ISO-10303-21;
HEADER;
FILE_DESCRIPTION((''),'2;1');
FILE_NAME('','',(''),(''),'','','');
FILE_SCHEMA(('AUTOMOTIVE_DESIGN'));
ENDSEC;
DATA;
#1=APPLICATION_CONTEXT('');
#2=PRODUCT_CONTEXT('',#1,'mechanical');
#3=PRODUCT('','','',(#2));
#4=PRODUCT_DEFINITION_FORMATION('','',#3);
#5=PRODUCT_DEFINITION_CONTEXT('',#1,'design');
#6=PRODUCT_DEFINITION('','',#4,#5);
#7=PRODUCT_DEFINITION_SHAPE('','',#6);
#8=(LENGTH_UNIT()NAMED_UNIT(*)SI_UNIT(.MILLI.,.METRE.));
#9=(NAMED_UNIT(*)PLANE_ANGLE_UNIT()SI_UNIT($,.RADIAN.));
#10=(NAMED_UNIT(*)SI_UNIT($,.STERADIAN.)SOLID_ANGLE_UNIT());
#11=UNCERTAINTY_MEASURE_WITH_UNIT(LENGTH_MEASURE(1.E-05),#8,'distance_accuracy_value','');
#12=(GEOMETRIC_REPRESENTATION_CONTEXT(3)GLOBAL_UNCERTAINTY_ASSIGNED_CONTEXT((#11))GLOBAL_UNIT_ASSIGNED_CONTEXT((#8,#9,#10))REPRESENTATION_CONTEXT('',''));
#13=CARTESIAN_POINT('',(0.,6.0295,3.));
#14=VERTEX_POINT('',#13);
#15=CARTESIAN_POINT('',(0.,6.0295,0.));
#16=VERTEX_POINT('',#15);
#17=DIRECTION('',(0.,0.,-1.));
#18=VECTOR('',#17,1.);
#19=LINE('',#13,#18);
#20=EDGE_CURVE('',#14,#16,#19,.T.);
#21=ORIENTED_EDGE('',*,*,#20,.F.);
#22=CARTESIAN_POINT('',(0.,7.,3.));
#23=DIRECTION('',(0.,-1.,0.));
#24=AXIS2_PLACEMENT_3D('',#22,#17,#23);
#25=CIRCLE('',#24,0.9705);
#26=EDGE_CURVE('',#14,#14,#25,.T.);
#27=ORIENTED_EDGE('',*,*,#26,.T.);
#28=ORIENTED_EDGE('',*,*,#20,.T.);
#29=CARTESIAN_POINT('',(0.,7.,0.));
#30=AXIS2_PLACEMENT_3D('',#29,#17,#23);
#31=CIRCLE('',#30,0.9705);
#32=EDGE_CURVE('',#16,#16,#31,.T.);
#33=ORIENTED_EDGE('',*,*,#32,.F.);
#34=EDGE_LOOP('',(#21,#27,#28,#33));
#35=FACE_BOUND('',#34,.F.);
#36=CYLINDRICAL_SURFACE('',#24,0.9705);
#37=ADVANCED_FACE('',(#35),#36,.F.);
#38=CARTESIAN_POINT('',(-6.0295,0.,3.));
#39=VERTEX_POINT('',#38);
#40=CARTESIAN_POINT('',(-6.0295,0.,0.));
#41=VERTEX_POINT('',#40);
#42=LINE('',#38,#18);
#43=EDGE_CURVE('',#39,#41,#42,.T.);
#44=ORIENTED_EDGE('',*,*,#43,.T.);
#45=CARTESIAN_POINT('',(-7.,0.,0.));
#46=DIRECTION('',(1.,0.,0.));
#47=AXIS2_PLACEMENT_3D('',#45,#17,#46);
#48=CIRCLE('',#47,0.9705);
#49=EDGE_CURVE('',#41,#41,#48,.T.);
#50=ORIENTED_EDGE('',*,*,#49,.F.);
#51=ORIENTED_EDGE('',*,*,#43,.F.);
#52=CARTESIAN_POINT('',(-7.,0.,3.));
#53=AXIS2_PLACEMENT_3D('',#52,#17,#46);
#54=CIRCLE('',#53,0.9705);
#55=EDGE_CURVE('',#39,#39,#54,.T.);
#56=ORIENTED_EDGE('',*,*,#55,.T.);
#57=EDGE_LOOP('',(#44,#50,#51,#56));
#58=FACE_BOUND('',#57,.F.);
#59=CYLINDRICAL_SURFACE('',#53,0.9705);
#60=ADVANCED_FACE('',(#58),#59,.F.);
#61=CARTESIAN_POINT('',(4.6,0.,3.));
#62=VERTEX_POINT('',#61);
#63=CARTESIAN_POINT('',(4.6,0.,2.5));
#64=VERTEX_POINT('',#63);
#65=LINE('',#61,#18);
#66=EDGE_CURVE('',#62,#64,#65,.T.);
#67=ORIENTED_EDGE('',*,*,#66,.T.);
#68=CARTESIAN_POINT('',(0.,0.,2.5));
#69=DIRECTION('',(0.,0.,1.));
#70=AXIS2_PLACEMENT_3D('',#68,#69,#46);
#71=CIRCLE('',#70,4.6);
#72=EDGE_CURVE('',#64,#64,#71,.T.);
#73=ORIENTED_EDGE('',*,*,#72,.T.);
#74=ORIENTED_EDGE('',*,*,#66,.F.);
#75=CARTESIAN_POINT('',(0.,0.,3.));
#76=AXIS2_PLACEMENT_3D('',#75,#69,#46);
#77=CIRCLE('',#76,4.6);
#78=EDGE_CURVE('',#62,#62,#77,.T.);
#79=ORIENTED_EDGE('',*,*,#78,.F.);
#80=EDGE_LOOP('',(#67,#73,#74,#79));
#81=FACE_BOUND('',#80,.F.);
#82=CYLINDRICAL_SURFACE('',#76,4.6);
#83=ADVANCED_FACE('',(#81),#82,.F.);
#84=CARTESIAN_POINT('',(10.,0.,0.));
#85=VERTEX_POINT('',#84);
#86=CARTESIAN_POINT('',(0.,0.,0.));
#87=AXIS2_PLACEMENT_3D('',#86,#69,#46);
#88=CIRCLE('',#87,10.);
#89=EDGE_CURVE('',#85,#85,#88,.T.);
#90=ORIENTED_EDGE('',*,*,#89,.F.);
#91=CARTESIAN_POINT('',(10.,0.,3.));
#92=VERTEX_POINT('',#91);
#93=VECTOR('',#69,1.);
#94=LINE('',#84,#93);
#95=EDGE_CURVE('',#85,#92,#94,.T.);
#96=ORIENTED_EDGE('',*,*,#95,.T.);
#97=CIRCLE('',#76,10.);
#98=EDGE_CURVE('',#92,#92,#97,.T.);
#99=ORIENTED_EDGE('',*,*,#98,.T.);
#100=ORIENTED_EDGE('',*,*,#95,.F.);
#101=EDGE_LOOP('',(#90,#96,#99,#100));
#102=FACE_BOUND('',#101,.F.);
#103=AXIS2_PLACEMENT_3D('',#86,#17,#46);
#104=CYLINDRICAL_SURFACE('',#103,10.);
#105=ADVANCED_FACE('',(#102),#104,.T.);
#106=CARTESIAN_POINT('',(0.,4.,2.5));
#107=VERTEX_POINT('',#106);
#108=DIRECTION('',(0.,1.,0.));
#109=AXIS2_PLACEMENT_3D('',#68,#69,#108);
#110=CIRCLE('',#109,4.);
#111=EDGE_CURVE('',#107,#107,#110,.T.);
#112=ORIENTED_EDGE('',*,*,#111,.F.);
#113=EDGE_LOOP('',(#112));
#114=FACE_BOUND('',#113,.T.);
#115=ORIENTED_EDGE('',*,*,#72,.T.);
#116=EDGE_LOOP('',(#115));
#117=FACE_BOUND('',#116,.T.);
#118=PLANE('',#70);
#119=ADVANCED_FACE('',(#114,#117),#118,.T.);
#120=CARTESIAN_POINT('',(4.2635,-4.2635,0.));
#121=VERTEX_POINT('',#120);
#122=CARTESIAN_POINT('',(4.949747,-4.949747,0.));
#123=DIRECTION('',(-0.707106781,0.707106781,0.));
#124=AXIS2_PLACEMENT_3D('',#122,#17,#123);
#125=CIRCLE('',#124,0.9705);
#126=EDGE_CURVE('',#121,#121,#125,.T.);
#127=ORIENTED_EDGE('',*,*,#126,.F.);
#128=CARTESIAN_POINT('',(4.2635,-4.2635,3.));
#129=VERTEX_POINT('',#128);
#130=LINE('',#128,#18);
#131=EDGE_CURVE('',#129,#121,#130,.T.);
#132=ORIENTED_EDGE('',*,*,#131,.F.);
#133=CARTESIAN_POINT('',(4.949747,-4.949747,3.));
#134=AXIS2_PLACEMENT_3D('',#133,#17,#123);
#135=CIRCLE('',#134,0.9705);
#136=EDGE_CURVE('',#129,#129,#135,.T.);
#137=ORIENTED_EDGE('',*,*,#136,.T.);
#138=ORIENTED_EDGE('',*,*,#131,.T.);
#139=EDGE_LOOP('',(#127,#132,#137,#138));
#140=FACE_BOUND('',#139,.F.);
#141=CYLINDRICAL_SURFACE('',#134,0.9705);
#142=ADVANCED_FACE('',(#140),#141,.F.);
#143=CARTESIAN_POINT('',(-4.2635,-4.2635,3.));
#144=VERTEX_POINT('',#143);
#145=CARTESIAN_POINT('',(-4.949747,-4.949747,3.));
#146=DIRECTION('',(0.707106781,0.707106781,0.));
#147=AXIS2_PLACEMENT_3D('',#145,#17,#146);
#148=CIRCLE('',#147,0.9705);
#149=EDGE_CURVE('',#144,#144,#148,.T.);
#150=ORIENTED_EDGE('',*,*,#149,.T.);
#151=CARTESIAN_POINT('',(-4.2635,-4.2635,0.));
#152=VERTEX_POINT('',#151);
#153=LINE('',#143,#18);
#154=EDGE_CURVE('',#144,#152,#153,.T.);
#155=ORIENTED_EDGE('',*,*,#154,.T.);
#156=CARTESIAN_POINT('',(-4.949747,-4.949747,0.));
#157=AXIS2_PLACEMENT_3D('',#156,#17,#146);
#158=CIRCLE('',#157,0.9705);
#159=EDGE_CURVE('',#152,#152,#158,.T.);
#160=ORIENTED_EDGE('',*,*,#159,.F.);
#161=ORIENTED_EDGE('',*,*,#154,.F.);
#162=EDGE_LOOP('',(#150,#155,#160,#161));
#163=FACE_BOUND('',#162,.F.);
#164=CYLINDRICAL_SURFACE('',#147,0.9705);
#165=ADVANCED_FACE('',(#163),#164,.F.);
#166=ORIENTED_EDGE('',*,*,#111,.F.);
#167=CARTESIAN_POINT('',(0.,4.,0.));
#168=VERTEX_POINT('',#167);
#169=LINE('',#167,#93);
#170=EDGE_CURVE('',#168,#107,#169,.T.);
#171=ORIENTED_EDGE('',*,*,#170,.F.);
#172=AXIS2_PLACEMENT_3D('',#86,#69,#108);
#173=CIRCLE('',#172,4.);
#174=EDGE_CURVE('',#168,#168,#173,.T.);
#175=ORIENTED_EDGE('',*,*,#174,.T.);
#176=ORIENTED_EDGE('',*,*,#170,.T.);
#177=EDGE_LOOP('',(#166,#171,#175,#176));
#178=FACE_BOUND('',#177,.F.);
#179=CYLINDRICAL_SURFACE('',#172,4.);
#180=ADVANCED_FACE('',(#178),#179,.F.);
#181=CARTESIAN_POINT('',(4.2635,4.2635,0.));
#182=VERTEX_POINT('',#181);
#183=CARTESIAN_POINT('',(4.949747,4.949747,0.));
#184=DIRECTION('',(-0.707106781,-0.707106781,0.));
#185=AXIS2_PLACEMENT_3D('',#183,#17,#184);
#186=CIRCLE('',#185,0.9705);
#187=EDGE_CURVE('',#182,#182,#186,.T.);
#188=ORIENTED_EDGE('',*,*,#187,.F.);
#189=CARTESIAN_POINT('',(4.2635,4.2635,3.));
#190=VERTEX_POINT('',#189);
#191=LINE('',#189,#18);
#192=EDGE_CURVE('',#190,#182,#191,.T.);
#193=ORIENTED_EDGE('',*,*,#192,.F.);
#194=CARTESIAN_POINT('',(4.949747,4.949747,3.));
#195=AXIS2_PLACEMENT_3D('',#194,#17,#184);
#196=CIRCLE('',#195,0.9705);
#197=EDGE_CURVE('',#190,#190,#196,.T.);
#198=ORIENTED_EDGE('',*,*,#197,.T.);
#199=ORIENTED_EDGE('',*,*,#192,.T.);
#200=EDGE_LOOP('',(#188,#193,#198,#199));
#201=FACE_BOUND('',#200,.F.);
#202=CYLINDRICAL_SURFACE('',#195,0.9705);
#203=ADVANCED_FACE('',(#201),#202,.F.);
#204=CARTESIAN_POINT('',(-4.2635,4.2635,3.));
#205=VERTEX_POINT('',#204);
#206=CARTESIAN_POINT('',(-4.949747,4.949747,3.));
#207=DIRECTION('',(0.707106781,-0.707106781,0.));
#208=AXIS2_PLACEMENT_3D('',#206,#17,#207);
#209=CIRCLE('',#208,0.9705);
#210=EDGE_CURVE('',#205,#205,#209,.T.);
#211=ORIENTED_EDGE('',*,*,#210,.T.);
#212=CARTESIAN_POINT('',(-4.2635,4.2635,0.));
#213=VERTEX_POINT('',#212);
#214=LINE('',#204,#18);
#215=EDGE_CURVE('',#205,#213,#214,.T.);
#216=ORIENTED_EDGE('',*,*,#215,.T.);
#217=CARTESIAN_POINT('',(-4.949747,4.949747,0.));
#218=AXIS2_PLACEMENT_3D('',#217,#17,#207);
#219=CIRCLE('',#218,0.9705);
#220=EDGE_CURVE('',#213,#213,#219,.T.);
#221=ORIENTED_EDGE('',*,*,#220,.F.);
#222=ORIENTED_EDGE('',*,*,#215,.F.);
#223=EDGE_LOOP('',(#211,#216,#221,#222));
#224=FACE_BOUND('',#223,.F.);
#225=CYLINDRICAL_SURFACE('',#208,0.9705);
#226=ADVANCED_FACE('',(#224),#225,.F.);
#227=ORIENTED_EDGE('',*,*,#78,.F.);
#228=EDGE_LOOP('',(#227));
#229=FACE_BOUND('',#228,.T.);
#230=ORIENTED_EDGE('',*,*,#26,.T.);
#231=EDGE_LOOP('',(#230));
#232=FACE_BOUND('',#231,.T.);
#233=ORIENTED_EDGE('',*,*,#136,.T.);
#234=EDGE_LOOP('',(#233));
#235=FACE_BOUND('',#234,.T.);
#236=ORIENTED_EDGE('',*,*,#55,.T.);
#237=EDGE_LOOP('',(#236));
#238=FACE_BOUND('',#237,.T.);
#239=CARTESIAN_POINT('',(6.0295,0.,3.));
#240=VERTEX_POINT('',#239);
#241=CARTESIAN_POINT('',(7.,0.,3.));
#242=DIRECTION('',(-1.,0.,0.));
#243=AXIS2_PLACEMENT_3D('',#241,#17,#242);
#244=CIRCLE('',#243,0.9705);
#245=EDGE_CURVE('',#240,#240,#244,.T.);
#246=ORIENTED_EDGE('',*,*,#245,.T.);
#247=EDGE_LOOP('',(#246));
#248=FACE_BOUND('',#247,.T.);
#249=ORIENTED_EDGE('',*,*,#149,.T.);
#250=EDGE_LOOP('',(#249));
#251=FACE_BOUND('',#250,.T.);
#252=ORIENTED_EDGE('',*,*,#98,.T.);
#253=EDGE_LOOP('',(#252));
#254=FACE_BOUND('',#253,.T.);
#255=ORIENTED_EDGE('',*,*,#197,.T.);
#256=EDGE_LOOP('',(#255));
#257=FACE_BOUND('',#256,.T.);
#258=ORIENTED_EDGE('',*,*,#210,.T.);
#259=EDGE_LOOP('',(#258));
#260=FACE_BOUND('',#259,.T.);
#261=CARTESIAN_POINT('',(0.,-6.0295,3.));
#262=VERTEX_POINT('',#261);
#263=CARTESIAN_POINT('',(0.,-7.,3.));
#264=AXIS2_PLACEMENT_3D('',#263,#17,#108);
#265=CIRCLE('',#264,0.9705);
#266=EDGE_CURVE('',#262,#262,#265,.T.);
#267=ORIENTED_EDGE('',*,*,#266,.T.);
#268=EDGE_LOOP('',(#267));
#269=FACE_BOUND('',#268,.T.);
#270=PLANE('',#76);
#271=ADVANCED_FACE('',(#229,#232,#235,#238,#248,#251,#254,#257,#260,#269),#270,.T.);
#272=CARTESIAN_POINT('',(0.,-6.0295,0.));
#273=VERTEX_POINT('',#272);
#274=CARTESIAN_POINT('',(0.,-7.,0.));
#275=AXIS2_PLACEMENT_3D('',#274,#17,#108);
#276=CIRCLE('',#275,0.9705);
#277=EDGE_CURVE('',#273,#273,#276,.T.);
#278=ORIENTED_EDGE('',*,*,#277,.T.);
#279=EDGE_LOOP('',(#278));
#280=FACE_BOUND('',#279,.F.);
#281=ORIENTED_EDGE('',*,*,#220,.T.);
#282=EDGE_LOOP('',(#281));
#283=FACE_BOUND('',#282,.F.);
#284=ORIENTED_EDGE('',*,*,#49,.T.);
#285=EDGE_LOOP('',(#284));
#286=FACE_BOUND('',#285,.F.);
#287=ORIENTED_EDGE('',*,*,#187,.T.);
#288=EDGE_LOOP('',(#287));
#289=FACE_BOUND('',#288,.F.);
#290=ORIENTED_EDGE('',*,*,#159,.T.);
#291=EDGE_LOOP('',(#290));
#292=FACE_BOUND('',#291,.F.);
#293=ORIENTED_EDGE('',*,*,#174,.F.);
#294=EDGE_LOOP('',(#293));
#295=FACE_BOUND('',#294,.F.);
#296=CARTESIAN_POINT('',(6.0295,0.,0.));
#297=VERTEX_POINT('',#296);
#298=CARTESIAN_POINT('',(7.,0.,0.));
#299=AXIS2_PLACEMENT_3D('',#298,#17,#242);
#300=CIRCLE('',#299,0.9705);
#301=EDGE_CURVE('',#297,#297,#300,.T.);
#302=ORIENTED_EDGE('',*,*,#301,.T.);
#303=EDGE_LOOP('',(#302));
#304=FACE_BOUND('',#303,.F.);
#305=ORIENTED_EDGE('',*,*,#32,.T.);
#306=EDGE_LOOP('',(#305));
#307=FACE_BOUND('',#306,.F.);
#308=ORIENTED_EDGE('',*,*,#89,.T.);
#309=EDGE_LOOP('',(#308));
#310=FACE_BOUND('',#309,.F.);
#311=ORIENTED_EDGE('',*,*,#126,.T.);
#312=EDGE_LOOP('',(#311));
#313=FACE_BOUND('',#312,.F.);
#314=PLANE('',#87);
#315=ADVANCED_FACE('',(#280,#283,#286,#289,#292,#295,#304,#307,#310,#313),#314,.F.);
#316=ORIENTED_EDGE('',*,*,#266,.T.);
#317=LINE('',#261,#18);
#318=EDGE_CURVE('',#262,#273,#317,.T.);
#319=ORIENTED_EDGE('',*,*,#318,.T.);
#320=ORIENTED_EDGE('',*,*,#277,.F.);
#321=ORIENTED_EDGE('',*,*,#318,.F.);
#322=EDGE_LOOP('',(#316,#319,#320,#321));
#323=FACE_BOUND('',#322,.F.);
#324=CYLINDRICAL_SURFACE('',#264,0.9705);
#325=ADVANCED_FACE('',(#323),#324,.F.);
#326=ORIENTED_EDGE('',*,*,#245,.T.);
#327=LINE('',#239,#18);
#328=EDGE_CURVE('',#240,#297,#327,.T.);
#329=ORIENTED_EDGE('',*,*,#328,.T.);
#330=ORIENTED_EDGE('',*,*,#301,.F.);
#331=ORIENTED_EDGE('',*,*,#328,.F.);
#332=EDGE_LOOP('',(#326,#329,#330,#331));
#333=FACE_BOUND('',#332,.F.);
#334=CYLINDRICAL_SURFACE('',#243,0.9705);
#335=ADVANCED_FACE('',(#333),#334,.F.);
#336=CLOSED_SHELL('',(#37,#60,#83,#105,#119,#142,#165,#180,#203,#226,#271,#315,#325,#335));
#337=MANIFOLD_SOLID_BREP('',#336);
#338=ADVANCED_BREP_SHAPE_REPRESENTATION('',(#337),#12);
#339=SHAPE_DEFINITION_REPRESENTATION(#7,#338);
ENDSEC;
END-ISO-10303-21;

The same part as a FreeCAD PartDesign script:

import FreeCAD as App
import Part
import Sketcher
from FreeCAD import Vector
Q = App.Units.Quantity

doc = App.newDocument("Part")
params = doc.addObject("Spreadsheet::Sheet", "Params")
for row, (alias, value) in enumerate([
    ("sketch1_diameter", "20 mm"),
    ("pad1_length", "3 mm"),
    ("hole_diameter", "1.941 mm"),
    ("sketch3_diameter", "8 mm"),
    ("hole2_diameter", "8 mm"),
    ("sketch4_diameter", "9.2 mm"),
    ("pocket1_length", "0.5 mm"),
], start=1):
    params.set(f"A{row}", alias)
    params.set(f"B{row}", "=" + value)
    params.setAlias(f"B{row}", alias)

body = doc.addObject("PartDesign::Body", "Body")

# Sketch on XY plane
sketch1 = body.newObject("Sketcher::SketchObject", "Sketch")
sketch1.AttachmentSupport = (doc.getObject("XY_Plane"), [""])
sketch1.MapMode = "FlatFace"
sketch1.addGeometry(Part.Circle(Vector(0, 0, 0), Vector(0, 0, 1), 10), False)
sketch1.addConstraint(Sketcher.Constraint("Coincident", 0, 3, -1, 1))
sketch1.addConstraint(Sketcher.Constraint("Diameter", 0, Q("20 mm")))
sketch1.setExpression("Constraints[1]", "Params.sketch1_diameter")
pad1 = body.newObject("PartDesign::Pad", "Pad")
pad1.Profile = sketch1
pad1.setExpression("Length", "Params.pad1_length")

# Sketch on XY plane
sketch2 = body.newObject("Sketcher::SketchObject", "Sketch001")
sketch2.AttachmentSupport = (doc.getObject("XY_Plane"), [""])
sketch2.MapMode = "FlatFace"
sketch2.AttachmentOffset = App.Placement(Vector(0, 0, 3), App.Rotation())
sketch2.addGeometry(Part.Circle(Vector(0, 7, 0), Vector(0, 0, 1), 0.9705), False)
sketch2.addConstraint(Sketcher.Constraint("PointOnObject", 0, 3, -2))
sketch2.addConstraint(Sketcher.Constraint("Diameter", 0, Q("1.941 mm")))
sketch2.addConstraint(Sketcher.Constraint("DistanceY", -1, 1, 0, 3, Q("7 mm")))
doc.recompute()
hole = body.newObject("PartDesign::Hole", "Hole")
hole.Profile = sketch2
hole.ThreadType = "None"
hole.setExpression("Diameter", "Params.hole_diameter")
hole.DepthType = "ThroughAll"

# Sketch on XY plane
sketch3 = body.newObject("Sketcher::SketchObject", "Sketch002")
sketch3.AttachmentSupport = (doc.getObject("XY_Plane"), [""])
sketch3.MapMode = "FlatFace"
sketch3.addGeometry(Part.Circle(Vector(0, 0, 0), Vector(0, 0, 1), 4), False)
sketch3.addConstraint(Sketcher.Constraint("Coincident", 0, 3, -1, 1))
sketch3.addConstraint(Sketcher.Constraint("Diameter", 0, Q("8 mm")))
sketch3.setExpression("Constraints[1]", "Params.sketch3_diameter")
doc.recompute()
hole2 = body.newObject("PartDesign::Hole", "Hole001")
hole2.Profile = sketch3
hole2.ThreadType = "None"
hole2.setExpression("Diameter", "Params.hole2_diameter")
hole2.DepthType = "ThroughAll"
hole2.Reversed = True

# Sketch on XY plane
sketch4 = body.newObject("Sketcher::SketchObject", "Sketch003")
sketch4.AttachmentSupport = (doc.getObject("XY_Plane"), [""])
sketch4.MapMode = "FlatFace"
sketch4.AttachmentOffset = App.Placement(Vector(0, 0, 3), App.Rotation())
sketch4.addGeometry(Part.Circle(Vector(0, 0, 0), Vector(0, 0, 1), 4.6), False)
sketch4.addConstraint(Sketcher.Constraint("Coincident", 0, 3, -1, 1))
sketch4.addConstraint(Sketcher.Constraint("Diameter", 0, Q("9.2 mm")))
sketch4.setExpression("Constraints[1]", "Params.sketch4_diameter")
pocket1 = body.newObject("PartDesign::Pocket", "Pocket")
pocket1.Profile = sketch4
pocket1.setExpression("Length", "Params.pocket1_length")
doc.recompute()

polarpattern = body.newObject("PartDesign::PolarPattern", "PolarPattern")
polarpattern.Originals = [hole]
polarpattern.Axis = (doc.getObject("Z_Axis"), [""])
polarpattern.Angle = 360
polarpattern.Occurrences = 8
body.Tip = polarpattern

doc.recompute()
